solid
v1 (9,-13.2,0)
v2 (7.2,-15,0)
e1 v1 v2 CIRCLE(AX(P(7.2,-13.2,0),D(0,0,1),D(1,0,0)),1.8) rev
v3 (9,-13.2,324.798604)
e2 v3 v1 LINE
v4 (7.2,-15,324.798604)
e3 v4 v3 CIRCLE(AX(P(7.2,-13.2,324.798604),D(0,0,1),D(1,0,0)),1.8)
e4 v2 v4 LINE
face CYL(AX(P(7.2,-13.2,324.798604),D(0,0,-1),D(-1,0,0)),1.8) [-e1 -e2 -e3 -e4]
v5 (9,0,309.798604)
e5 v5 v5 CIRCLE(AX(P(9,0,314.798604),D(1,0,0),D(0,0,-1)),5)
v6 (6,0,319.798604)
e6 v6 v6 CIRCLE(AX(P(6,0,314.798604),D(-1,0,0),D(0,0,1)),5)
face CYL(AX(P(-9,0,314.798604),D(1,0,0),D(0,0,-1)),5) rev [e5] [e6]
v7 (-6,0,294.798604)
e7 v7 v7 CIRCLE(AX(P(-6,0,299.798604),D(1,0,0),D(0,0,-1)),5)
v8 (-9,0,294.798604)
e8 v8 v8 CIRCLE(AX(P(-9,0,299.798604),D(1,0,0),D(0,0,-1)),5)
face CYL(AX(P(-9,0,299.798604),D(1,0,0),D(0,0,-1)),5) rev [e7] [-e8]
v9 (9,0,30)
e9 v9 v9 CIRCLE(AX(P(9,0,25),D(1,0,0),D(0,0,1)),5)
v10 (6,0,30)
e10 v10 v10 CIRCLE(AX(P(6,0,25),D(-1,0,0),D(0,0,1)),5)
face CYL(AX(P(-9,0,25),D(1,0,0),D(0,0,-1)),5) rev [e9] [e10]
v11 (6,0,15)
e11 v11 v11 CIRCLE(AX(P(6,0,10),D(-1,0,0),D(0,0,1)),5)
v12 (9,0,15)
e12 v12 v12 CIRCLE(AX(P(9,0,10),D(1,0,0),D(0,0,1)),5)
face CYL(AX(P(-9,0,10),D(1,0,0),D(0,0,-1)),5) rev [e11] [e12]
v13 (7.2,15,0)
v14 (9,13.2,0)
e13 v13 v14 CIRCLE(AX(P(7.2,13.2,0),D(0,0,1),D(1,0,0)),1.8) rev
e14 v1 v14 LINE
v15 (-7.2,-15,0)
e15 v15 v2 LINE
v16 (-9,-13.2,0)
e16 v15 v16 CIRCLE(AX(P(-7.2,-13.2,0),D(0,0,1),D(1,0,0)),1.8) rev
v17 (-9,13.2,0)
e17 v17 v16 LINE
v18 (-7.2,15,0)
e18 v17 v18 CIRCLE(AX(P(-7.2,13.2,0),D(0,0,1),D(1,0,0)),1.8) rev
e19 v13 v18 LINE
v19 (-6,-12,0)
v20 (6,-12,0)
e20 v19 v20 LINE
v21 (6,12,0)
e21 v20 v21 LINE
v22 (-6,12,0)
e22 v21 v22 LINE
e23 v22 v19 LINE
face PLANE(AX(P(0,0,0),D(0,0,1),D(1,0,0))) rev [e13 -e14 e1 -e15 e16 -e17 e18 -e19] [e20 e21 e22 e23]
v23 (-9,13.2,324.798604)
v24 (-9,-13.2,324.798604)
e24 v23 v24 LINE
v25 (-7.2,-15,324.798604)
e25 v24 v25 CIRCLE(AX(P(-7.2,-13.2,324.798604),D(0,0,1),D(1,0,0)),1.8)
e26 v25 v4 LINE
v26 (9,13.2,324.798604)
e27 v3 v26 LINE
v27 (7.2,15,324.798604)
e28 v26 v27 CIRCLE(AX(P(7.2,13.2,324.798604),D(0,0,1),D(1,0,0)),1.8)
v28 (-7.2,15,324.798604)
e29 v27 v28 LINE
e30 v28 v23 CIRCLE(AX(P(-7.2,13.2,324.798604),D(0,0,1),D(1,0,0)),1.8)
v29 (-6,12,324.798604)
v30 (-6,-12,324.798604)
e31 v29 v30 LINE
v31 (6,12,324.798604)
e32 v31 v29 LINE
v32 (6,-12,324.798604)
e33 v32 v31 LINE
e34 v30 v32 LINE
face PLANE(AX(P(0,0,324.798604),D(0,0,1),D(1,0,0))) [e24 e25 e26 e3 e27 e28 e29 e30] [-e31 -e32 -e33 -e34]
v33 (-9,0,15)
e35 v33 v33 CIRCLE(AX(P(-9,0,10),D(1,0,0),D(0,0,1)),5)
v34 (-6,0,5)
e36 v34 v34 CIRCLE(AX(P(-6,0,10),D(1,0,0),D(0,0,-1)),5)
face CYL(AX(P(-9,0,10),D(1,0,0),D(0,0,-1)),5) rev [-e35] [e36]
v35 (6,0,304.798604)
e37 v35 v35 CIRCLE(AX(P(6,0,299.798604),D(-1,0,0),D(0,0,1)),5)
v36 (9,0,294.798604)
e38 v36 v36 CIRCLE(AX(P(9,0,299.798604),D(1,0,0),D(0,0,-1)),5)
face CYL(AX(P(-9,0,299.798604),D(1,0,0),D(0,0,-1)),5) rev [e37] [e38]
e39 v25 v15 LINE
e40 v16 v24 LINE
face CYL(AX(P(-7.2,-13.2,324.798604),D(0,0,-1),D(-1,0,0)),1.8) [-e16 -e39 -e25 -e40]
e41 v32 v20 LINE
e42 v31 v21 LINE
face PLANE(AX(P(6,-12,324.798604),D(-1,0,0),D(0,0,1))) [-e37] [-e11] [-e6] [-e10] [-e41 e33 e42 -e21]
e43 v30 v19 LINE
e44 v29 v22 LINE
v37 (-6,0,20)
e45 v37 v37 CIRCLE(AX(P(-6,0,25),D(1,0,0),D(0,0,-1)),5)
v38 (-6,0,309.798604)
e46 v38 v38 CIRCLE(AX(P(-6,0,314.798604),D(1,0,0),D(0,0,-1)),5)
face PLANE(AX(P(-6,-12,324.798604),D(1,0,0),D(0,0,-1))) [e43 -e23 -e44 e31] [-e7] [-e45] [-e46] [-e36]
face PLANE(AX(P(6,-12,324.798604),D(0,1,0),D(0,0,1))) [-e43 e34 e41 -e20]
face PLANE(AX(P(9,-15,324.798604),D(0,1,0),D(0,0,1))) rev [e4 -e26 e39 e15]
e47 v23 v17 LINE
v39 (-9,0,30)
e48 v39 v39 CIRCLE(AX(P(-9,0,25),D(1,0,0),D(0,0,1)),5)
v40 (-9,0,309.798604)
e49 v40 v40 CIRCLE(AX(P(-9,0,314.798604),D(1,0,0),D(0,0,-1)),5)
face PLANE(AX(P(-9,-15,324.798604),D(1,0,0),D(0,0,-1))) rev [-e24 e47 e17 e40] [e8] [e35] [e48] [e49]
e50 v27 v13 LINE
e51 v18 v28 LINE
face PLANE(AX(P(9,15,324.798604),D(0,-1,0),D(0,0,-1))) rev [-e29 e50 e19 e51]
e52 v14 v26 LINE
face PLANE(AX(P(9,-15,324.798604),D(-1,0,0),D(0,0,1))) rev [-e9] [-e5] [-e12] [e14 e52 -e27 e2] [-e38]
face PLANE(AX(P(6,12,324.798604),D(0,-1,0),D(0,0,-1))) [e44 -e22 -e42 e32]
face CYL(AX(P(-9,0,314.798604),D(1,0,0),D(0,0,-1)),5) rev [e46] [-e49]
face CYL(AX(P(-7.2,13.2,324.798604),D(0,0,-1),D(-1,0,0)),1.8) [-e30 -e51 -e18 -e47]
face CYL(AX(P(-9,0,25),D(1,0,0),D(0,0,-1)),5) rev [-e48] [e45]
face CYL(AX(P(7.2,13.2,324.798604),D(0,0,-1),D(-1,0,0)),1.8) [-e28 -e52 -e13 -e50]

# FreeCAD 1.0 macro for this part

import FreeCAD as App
import Part
import Sketcher

V = App.Vector


def edges_at(feature, points):
    """Names of the edges that pass closest to the given points."""
    edges = feature.Shape.Edges
    near = lambda p: min(range(len(edges)), key=lambda i: edges[i].distToShape(Part.Vertex(*p))[0])
    return sorted({f"Edge{near(p) + 1}" for p in points})

doc = App.newDocument("Part")
body = doc.addObject("PartDesign::Body", "Body")

sketch1 = body.newObject("Sketcher::SketchObject", "Sketch")
sketch1.AttachmentSupport = (doc.getObject("XY_Plane"), [""])
sketch1.MapMode = "FlatFace"
sketch1.addGeometry(Part.LineSegment(V(-9, 15, 0), V(-9, -15, 0)), False)
sketch1.addGeometry(Part.LineSegment(V(-9, -15, 0), V(9, -15, 0)), False)
sketch1.addGeometry(Part.LineSegment(V(9, -15, 0), V(9, 15, 0)), False)
sketch1.addGeometry(Part.LineSegment(V(9, 15, 0), V(-9, 15, 0)), False)
sketch1.addGeometry(Part.LineSegment(V(6, -12, 0), V(-6, -12, 0)), False)
sketch1.addGeometry(Part.LineSegment(V(-6, -12, 0), V(-6, 12, 0)), False)
sketch1.addGeometry(Part.LineSegment(V(-6, 12, 0), V(6, 12, 0)), False)
sketch1.addGeometry(Part.LineSegment(V(6, 12, 0), V(6, -12, 0)), False)
sketch1.addConstraint(Sketcher.Constraint("Coincident", 0, 2, 1, 1))
sketch1.addConstraint(Sketcher.Constraint("Coincident", 1, 2, 2, 1))
sketch1.addConstraint(Sketcher.Constraint("Coincident", 2, 2, 3, 1))
sketch1.addConstraint(Sketcher.Constraint("Coincident", 3, 2, 0, 1))
sketch1.addConstraint(Sketcher.Constraint("Coincident", 4, 2, 5, 1))
sketch1.addConstraint(Sketcher.Constraint("Coincident", 5, 2, 6, 1))
sketch1.addConstraint(Sketcher.Constraint("Coincident", 6, 2, 7, 1))
sketch1.addConstraint(Sketcher.Constraint("Coincident", 7, 2, 4, 1))
sketch1.addConstraint(Sketcher.Constraint("Vertical", 0))
sketch1.addConstraint(Sketcher.Constraint("Horizontal", 1))
sketch1.addConstraint(Sketcher.Constraint("Vertical", 2))
sketch1.addConstraint(Sketcher.Constraint("Horizontal", 3))
sketch1.addConstraint(Sketcher.Constraint("Horizontal", 4))
sketch1.addConstraint(Sketcher.Constraint("Vertical", 5))
sketch1.addConstraint(Sketcher.Constraint("Horizontal", 6))
sketch1.addConstraint(Sketcher.Constraint("Vertical", 7))
sketch1.addConstraint(Sketcher.Constraint("Symmetric", 0, 2, 2, 2, -1, 1))
sketch1.addConstraint(Sketcher.Constraint("Symmetric", 4, 2, 6, 2, -1, 1))
sketch1.addConstraint(Sketcher.Constraint("DistanceX", 1, 1, 1, 2, 18.0))
sketch1.addConstraint(Sketcher.Constraint("DistanceX", 4, 2, 4, 1, 12.0))
sketch1.addConstraint(Sketcher.Constraint("DistanceY", 0, 2, 0, 1, 30.0))
sketch1.addConstraint(Sketcher.Constraint("DistanceY", 5, 1, 5, 2, 24.0))
pad1 = body.newObject("PartDesign::Pad", "Pad")
pad1.Profile = sketch1
pad1.Length = 324.798604

sketch2 = body.newObject("Sketcher::SketchObject", "Sketch001")
sketch2.AttachmentSupport = (doc.getObject("YZ_Plane"), [""])
sketch2.MapMode = "FlatFace"
sketch2.AttachmentOffset = App.Placement(V(0, 0, 9), App.Rotation())
sketch2.addGeometry(Part.Circle(V(0, 315, 0), V(0, 0, 1), 5), False)
sketch2.addGeometry(Part.Circle(V(0, 300, 0), V(0, 0, 1), 5), False)
sketch2.addGeometry(Part.Circle(V(0, 25, 0), V(0, 0, 1), 5), False)
sketch2.addGeometry(Part.Circle(V(0, 10, 0), V(0, 0, 1), 5), False)
sketch2.addConstraint(Sketcher.Constraint("Equal", 0, 1))
sketch2.addConstraint(Sketcher.Constraint("Equal", 1, 2))
sketch2.addConstraint(Sketcher.Constraint("Equal", 2, 3))
sketch2.addConstraint(Sketcher.Constraint("PointOnObject", 0, 3, -2))
sketch2.addConstraint(Sketcher.Constraint("PointOnObject", 1, 3, -2))
sketch2.addConstraint(Sketcher.Constraint("PointOnObject", 2, 3, -2))
sketch2.addConstraint(Sketcher.Constraint("PointOnObject", 3, 3, -2))
sketch2.addConstraint(Sketcher.Constraint("Diameter", 0, 10.0))
sketch2.addConstraint(Sketcher.Constraint("DistanceY", -1, 1, 2, 3, 25.0))
sketch2.addConstraint(Sketcher.Constraint("DistanceY", -1, 1, 3, 3, 10.0))
sketch2.addConstraint(Sketcher.Constraint("DistanceY", 1, 3, 0, 3, 15.0))
sketch2.addConstraint(Sketcher.Constraint("DistanceY", -1, 1, 0, 3, 314.798604))
pocket1 = body.newObject("PartDesign::Pocket", "Pocket")
pocket1.Profile = sketch2
pocket1.Type = "ThroughAll"
doc.recompute()

fillet = body.newObject("PartDesign::Fillet", "Fillet")
fillet.Base = (pocket1, edges_at(pocket1, [
    (-9, 15, 162.399),
    (9, 15, 162.399),
    (9, -15, 162.399),
    (-9, -15, 162.399),
]))
fillet.Radius = 1.8

doc.recompute()
